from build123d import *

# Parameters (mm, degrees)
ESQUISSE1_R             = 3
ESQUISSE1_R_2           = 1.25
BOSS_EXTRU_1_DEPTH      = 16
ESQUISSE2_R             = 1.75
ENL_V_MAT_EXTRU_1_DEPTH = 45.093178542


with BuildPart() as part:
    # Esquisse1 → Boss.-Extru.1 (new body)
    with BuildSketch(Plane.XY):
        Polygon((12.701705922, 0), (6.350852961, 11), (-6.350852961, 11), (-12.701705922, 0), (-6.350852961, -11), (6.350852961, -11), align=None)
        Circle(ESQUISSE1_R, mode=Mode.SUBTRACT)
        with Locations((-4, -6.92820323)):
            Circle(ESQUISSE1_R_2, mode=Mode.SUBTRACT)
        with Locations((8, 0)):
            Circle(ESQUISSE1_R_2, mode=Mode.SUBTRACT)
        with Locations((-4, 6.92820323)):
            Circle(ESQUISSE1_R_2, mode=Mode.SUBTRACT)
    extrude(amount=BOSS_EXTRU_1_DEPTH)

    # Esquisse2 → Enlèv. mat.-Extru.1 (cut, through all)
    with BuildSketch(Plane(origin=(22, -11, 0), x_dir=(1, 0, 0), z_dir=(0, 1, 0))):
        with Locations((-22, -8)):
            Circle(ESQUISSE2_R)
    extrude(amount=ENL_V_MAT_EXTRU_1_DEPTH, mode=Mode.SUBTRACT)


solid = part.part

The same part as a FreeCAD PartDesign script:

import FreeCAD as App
import Part
import Sketcher
from FreeCAD import Vector
Q = App.Units.Quantity

doc = App.newDocument("Part")
body = doc.addObject("PartDesign::Body", "Body")

# Sketch on XY plane
sketch1 = body.newObject("Sketcher::SketchObject", "Sketch")
sketch1.AttachmentSupport = (doc.getObject("XY_Plane"), [""])
sketch1.MapMode = "FlatFace"
sketch1.addGeometry(Part.LineSegment(Vector(12.7, 0, 0), Vector(6.4, 11, 0)), False)
sketch1.addGeometry(Part.LineSegment(Vector(6.4, 11, 0), Vector(-6.4, 11, 0)), False)
sketch1.addGeometry(Part.LineSegment(Vector(-6.4, 11, 0), Vector(-12.7, 0, 0)), False)
sketch1.addGeometry(Part.LineSegment(Vector(-12.7, 0, 0), Vector(-6.4, -11, 0)), False)
sketch1.addGeometry(Part.LineSegment(Vector(-6.4, -11, 0), Vector(6.4, -11, 0)), False)
sketch1.addGeometry(Part.LineSegment(Vector(6.4, -11, 0), Vector(12.7, 0, 0)), False)
sketch1.addGeometry(Part.Circle(Vector(-4, -6.9, 0), Vector(0, 0, 1), 1.2), False)
sketch1.addGeometry(Part.Circle(Vector(0, 0, 0), Vector(0, 0, 1), 3), False)
sketch1.addGeometry(Part.Circle(Vector(-4, 6.9, 0), Vector(0, 0, 1), 1.2), False)
sketch1.addGeometry(Part.Circle(Vector(8, 0, 0), Vector(0, 0, 1), 1.2), False)
sketch1.addConstraint(Sketcher.Constraint("Coincident", 0, 2, 1, 1))
sketch1.addConstraint(Sketcher.Constraint("Coincident", 1, 2, 2, 1))
sketch1.addConstraint(Sketcher.Constraint("Coincident", 2, 2, 3, 1))
sketch1.addConstraint(Sketcher.Constraint("Coincident", 3, 2, 4, 1))
sketch1.addConstraint(Sketcher.Constraint("Coincident", 4, 2, 5, 1))
sketch1.addConstraint(Sketcher.Constraint("Coincident", 5, 2, 0, 1))
sketch1.addConstraint(Sketcher.Constraint("Horizontal", 1))
sketch1.addConstraint(Sketcher.Constraint("Horizontal", 4))
sketch1.addConstraint(Sketcher.Constraint("Coincident", 7, 3, -1, 1))
sketch1.addConstraint(Sketcher.Constraint("Equal", 6, 8))
sketch1.addConstraint(Sketcher.Constraint("Equal", 8, 9))
sketch1.addConstraint(Sketcher.Constraint("Symmetric", 0, 2, 3, 2, -1, 1))
sketch1.addConstraint(Sketcher.Constraint("Symmetric", 2, 2, 5, 2, -1, 1))
sketch1.addConstraint(Sketcher.Constraint("Symmetric", 6, 3, 8, 3, -1))
sketch1.addConstraint(Sketcher.Constraint("PointOnObject", 9, 3, -1))
sketch1.addConstraint(Sketcher.Constraint("PointOnObject", 2, 2, -1))
sketch1.addConstraint(Sketcher.Constraint("Parallel", 2, 5))
sketch1.addConstraint(Sketcher.Constraint("Vertical", 1, 2, 3, 2))
sketch1.addConstraint(Sketcher.Constraint("Diameter", 7, Q("6 mm")))
sketch1.addConstraint(Sketcher.Constraint("Diameter", 6, Q("2.5 mm")))
sketch1.addConstraint(Sketcher.Constraint("Angle", 0, Q("120 deg")))
sketch1.addConstraint(Sketcher.Constraint("DistanceX", 6, 3, -1, 1, Q("4 mm")))
sketch1.addConstraint(Sketcher.Constraint("DistanceX", -1, 1, 9, 3, Q("8 mm")))
sketch1.addConstraint(Sketcher.Constraint("DistanceY", -1, 1, 0, 2, Q("11 mm")))
sketch1.addConstraint(Sketcher.Constraint("DistanceX", 1, 2, 1, 1, Q("12.701706 mm")))
sketch1.addConstraint(Sketcher.Constraint("DistanceY", 6, 3, -1, 1, Q("6.928203 mm")))
pad1 = body.newObject("PartDesign::Pad", "Pad")
pad1.Profile = sketch1
pad1.Length = 16

# Sketch on XZ plane
sketch2 = body.newObject("Sketcher::SketchObject", "Sketch001")
sketch2.AttachmentSupport = (doc.getObject("XZ_Plane"), [""])
sketch2.MapMode = "FlatFace"
sketch2.AttachmentOffset = App.Placement(Vector(0, 0, 11), App.Rotation())
sketch2.addGeometry(Part.Circle(Vector(0, 8, 0), Vector(0, 0, 1), 1.8), False)
sketch2.addConstraint(Sketcher.Constraint("PointOnObject", 0, 3, -2))
sketch2.addConstraint(Sketcher.Constraint("Diameter", 0, Q("3.5 mm")))
sketch2.addConstraint(Sketcher.Constraint("DistanceY", -1, 1, 0, 3, Q("8 mm")))
pocket1 = body.newObject("PartDesign::Pocket", "Pocket")
pocket1.Profile = sketch2
pocket1.Type = "ThroughAll"

doc.recompute()
